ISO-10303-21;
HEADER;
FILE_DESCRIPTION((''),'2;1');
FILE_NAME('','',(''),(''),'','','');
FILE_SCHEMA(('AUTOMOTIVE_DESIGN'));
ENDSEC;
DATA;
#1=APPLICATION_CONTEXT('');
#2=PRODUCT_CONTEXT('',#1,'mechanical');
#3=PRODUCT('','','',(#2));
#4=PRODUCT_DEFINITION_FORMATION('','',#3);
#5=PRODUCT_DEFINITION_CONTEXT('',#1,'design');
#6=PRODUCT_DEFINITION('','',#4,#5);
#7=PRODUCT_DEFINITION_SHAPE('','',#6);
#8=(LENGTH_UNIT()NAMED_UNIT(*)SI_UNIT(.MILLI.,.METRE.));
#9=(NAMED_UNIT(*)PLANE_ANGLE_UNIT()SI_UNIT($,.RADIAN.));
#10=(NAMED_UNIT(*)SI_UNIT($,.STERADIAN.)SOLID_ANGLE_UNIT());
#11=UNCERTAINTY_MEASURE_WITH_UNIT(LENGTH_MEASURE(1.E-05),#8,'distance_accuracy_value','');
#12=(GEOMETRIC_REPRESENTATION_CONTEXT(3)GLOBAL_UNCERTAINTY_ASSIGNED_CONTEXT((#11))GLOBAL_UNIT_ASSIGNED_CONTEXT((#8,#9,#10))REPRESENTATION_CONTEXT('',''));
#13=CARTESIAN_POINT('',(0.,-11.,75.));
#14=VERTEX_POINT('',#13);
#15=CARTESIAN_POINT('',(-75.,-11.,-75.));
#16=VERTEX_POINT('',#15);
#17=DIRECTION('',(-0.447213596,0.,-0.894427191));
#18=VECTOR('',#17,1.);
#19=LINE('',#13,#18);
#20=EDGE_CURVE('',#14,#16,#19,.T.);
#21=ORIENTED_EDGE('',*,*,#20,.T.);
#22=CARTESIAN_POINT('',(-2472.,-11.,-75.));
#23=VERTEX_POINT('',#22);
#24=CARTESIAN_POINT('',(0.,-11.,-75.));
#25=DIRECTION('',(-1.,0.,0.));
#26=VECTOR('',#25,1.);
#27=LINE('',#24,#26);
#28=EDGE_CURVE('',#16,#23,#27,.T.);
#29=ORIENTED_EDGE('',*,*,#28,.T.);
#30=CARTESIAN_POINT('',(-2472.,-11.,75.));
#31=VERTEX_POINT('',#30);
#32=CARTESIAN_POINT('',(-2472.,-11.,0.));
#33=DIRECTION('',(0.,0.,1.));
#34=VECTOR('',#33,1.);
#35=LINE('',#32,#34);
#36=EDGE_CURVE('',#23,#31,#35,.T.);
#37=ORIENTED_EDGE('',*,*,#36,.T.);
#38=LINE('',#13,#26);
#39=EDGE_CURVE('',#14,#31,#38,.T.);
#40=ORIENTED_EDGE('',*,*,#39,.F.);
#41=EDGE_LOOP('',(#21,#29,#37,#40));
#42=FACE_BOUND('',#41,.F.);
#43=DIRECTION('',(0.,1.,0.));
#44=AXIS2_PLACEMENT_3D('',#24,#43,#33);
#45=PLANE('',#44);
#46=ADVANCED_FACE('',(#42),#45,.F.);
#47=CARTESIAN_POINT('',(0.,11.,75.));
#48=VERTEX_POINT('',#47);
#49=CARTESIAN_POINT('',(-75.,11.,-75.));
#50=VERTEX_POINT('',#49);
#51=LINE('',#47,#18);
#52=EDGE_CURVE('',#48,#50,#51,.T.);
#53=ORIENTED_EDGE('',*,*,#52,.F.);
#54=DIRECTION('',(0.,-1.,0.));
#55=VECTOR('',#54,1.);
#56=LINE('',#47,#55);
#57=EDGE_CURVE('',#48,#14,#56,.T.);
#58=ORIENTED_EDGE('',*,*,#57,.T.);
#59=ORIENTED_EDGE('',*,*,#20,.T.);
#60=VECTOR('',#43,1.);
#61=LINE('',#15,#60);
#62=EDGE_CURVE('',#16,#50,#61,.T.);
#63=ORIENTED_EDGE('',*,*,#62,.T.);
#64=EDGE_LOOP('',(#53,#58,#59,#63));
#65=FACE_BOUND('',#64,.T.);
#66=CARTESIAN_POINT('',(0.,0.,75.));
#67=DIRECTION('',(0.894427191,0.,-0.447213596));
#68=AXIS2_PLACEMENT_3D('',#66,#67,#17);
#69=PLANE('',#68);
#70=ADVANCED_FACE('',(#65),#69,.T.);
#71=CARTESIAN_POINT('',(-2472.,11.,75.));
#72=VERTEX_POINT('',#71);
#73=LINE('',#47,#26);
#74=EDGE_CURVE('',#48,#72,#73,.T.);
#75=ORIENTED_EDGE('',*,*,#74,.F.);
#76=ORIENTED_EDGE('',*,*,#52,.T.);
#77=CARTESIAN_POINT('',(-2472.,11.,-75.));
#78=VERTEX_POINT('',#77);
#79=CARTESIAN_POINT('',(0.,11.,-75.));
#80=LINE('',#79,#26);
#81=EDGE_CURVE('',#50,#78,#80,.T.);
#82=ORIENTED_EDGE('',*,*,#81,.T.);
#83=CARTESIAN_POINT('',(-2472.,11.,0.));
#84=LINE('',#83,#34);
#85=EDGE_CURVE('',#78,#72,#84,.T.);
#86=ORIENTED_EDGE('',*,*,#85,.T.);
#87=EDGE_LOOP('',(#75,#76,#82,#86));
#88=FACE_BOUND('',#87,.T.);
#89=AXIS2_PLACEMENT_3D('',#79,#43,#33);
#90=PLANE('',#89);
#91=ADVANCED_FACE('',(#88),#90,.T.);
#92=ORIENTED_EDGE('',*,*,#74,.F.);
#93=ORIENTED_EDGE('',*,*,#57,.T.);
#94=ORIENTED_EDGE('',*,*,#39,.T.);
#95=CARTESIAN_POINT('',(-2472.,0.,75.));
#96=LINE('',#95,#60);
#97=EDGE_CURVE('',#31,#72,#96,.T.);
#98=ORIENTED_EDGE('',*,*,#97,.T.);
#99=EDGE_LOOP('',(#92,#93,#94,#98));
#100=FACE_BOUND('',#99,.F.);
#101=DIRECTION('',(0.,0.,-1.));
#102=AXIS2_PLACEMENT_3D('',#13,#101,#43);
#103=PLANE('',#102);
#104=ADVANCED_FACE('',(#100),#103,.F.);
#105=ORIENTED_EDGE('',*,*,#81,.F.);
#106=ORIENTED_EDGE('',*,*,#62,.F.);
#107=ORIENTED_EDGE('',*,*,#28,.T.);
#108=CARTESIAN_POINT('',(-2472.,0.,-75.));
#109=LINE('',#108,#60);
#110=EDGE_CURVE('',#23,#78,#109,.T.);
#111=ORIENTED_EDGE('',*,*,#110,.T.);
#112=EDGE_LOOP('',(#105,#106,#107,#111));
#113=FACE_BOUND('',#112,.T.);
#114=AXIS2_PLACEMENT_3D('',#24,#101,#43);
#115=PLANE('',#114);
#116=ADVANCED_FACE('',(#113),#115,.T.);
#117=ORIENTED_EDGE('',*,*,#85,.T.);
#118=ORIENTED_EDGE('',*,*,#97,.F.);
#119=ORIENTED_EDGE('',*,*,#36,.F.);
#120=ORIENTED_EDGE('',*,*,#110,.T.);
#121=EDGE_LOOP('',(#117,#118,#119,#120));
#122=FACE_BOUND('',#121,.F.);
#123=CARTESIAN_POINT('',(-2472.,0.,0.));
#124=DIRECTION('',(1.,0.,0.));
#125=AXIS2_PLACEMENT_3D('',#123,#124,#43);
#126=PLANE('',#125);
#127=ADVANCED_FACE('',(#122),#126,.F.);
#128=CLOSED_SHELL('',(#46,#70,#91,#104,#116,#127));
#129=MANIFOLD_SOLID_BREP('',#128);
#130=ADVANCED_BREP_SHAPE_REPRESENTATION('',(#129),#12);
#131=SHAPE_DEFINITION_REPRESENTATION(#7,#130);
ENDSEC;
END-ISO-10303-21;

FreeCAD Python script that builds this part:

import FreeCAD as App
import Part
import Sketcher

V = App.Vector
Q = App.Units.Quantity


def add_polygon(sketch, points):
    """Adds a closed chain of lines whose ends are joined by coincident constraints."""
    first, n = sketch.GeometryCount, len(points)
    for a, b in zip(points, points[1:] + points[:1]):
        sketch.addGeometry(Part.LineSegment(App.Vector(*a, 0), App.Vector(*b, 0)), False)
    for i in range(n):
        sketch.addConstraint(Sketcher.Constraint("Coincident", first + i, 2, first + (i + 1) % n, 1))

doc = App.newDocument("Part")
body = doc.addObject("PartDesign::Body", "Body")

# Sketch on YZ plane
sketch1 = body.newObject("Sketcher::SketchObject", "Sketch")
sketch1.AttachmentSupport = (doc.getObject("YZ_Plane"), [""])
sketch1.MapMode = "FlatFace"
add_polygon(sketch1, [(-11, 75), (-11, -75), (11, -75), (11, 75)])  # lines 0-3
sketch1.addConstraint(Sketcher.Constraint("Vertical", 0))
sketch1.addConstraint(Sketcher.Constraint("Horizontal", 1))
sketch1.addConstraint(Sketcher.Constraint("Vertical", 2))
sketch1.addConstraint(Sketcher.Constraint("Horizontal", 3))
sketch1.addConstraint(Sketcher.Constraint("Symmetric", 0, 2, 2, 2, -1, 1))
sketch1.addConstraint(Sketcher.Constraint("DistanceX", 1, 1, 1, 2, Q("22 mm")))
sketch1.addConstraint(Sketcher.Constraint("DistanceY", 0, 2, 0, 1, Q("150 mm")))
pad1 = body.newObject("PartDesign::Pad", "Pad")
pad1.Profile = sketch1
pad1.Length = 2472
pad1.Reversed = True

# Sketch on XZ plane
sketch2 = body.newObject("Sketcher::SketchObject", "Sketch001")
sketch2.AttachmentSupport = (doc.getObject("XZ_Plane"), [""])
sketch2.MapMode = "FlatFace"
add_polygon(sketch2, [(0, -75), (0, 75), (-75, -75)])  # lines 0-2
sketch2.addConstraint(Sketcher.Constraint("Vertical", 0))
sketch2.addConstraint(Sketcher.Constraint("Horizontal", 2))
sketch2.addConstraint(Sketcher.Constraint("Symmetric", 0, 2, 2, 2, -1, 1))
sketch2.addConstraint(Sketcher.Constraint("DistanceX", 2, 1, 2, 2, Q("75 mm")))
sketch2.addConstraint(Sketcher.Constraint("DistanceY", 0, 1, 0, 2, Q("150 mm")))
pocket1 = body.newObject("PartDesign::Pocket", "Pocket")
pocket1.Profile = sketch2
pocket1.Type = "ThroughAll"
pocket1.Midplane = True

doc.recompute()
